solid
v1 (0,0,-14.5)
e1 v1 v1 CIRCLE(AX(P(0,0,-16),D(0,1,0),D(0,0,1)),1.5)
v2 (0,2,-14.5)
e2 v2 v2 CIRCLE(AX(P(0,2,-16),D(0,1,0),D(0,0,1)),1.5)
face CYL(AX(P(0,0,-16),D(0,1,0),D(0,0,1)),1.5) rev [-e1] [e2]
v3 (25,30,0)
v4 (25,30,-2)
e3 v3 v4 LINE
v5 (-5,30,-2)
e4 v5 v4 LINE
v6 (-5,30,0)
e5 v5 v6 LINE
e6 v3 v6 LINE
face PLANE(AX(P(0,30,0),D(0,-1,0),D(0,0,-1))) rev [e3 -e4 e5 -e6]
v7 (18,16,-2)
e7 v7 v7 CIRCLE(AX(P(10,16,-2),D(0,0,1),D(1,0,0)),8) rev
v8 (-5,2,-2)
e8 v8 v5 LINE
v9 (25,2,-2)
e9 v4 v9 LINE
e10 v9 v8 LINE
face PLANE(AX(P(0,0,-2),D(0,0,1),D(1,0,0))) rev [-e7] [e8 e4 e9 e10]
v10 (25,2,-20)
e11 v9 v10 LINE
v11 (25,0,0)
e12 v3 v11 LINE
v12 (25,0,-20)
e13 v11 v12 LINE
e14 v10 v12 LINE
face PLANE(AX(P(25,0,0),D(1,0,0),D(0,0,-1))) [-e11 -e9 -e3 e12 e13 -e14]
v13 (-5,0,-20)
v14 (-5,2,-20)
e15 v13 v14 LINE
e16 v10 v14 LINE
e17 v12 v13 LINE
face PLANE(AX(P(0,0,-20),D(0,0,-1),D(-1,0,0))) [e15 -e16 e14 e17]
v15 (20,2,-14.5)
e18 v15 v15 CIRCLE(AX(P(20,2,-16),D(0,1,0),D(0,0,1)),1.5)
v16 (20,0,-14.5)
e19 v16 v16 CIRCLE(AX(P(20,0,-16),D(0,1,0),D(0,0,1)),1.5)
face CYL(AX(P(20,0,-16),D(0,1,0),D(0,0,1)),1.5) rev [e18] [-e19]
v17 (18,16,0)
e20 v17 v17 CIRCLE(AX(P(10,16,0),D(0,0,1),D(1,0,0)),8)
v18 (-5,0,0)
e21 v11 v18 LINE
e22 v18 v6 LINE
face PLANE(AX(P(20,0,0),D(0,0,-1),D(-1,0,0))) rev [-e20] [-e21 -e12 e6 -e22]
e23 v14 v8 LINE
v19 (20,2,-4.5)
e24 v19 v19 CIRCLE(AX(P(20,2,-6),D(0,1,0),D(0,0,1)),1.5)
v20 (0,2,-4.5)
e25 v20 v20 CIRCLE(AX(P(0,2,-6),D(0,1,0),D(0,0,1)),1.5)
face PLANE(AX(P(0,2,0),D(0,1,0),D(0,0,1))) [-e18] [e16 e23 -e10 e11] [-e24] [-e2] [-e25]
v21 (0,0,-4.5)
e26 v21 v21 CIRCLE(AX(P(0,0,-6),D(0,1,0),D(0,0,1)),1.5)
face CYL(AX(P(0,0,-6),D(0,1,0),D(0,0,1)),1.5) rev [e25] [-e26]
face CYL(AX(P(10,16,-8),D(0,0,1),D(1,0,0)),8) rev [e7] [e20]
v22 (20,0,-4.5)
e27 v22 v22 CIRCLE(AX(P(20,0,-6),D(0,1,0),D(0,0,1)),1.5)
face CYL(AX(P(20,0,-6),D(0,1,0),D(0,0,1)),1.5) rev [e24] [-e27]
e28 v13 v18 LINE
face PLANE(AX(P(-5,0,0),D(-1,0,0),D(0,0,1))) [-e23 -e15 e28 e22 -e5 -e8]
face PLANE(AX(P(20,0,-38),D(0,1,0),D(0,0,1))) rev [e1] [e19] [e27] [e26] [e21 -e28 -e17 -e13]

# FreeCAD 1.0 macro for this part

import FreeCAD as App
import Part
import Sketcher


def add_polygon(sketch, points):
    """Adds a closed chain of lines whose ends are joined by coincident constraints."""
    first, n = sketch.GeometryCount, len(points)
    for a, b in zip(points, points[1:] + points[:1]):
        sketch.addGeometry(Part.LineSegment(App.Vector(*a, 0), App.Vector(*b, 0)), False)
    for i in range(n):
        sketch.addConstraint(Sketcher.Constraint("Coincident", first + i, 2, first + (i + 1) % n, 1))

doc = App.newDocument("Part")
body = doc.addObject("PartDesign::Body", "Body")

sketch1 = body.newObject("Sketcher::SketchObject", "Sketch")
sketch1.AttachmentSupport = (doc.getObject("YZ_Plane"), [""])
sketch1.MapMode = "FlatFace"
add_polygon(sketch1, [(38, 0), (0, 0), (0, -38), (3, -38), (3, -3), (38, -3)])
sketch1.addConstraint(Sketcher.Constraint("Horizontal", 0))
sketch1.addConstraint(Sketcher.Constraint("Vertical", 1))
sketch1.addConstraint(Sketcher.Constraint("Horizontal", 2))
sketch1.addConstraint(Sketcher.Constraint("Vertical", 3))
sketch1.addConstraint(Sketcher.Constraint("Horizontal", 4))
sketch1.addConstraint(Sketcher.Constraint("Vertical", 5))
sketch1.addConstraint(Sketcher.Constraint("Coincident", 0, 2, -1, 1))
sketch1.addConstraint(Sketcher.Constraint("Equal", 0, 1))
sketch1.addConstraint(Sketcher.Constraint("Equal", 4, 3))
sketch1.addConstraint(Sketcher.Constraint("DistanceX", 0, 2, 0, 1, 38.0))
sketch1.addConstraint(Sketcher.Constraint("DistanceX", 2, 1, 2, 2, 3.0))
pad1 = body.newObject("PartDesign::Pad", "Pad")
pad1.Profile = sketch1
pad1.Length = 20

sketch2 = body.newObject("Sketcher::SketchObject", "Sketch001")
sketch2.AttachmentSupport = (doc.getObject("YZ_Plane"), [""])
sketch2.MapMode = "FlatFace"
sketch2.AttachmentOffset = App.Placement(App.Vector(0, 0, 20), App.Rotation())
add_polygon(sketch2, [(38, -3), (38, 0), (0, 0), (0, -38), (3, -38), (3, -3)])
sketch2.addConstraint(Sketcher.Constraint("Vertical", 0))
sketch2.addConstraint(Sketcher.Constraint("Horizontal", 1))
sketch2.addConstraint(Sketcher.Constraint("Vertical", 2))
sketch2.addConstraint(Sketcher.Constraint("Horizontal", 3))
sketch2.addConstraint(Sketcher.Constraint("Vertical", 4))
sketch2.addConstraint(Sketcher.Constraint("Horizontal", 5))
sketch2.addConstraint(Sketcher.Constraint("Coincident", 1, 2, -1, 1))
sketch2.addConstraint(Sketcher.Constraint("Equal", 3, 0))
sketch2.addConstraint(Sketcher.Constraint("Equal", 1, 2))
sketch2.addConstraint(Sketcher.Constraint("DistanceX", 1, 2, 1, 1, 38.0))
sketch2.addConstraint(Sketcher.Constraint("DistanceX", 3, 1, 3, 2, 3.0))
pad2 = body.newObject("PartDesign::Pad", "Pad001")
pad2.Profile = sketch2
pad2.Length = 5

sketch3 = body.newObject("Sketcher::SketchObject", "Sketch002")
sketch3.AttachmentSupport = (doc.getObject("YZ_Plane"), [""])
sketch3.MapMode = "FlatFace"
add_polygon(sketch3, [(38, -3), (3, -3), (3, -38), (0, -38), (0, 0), (38, 0)])
sketch3.addConstraint(Sketcher.Constraint("Horizontal", 0))
sketch3.addConstraint(Sketcher.Constraint("Vertical", 1))
sketch3.addConstraint(Sketcher.Constraint("Horizontal", 2))
sketch3.addConstraint(Sketcher.Constraint("Vertical", 3))
sketch3.addConstraint(Sketcher.Constraint("Horizontal", 4))
sketch3.addConstraint(Sketcher.Constraint("Vertical", 5))
sketch3.addConstraint(Sketcher.Constraint("Coincident", 3, 2, -1, 1))
sketch3.addConstraint(Sketcher.Constraint("Equal", 0, 1))
sketch3.addConstraint(Sketcher.Constraint("Equal", 4, 3))
sketch3.addConstraint(Sketcher.Constraint("DistanceX", 0, 2, 0, 1, 35.0))
sketch3.addConstraint(Sketcher.Constraint("DistanceX", 2, 2, 2, 1, 3.0))
pad3 = body.newObject("PartDesign::Pad", "Pad002")
pad3.Profile = sketch3
pad3.Length = 5
pad3.Reversed = True

sketch4 = body.newObject("Sketcher::SketchObject", "Sketch003")
sketch4.AttachmentSupport = (doc.getObject("XY_Plane"), [""])
sketch4.MapMode = "FlatFace"
sketch4.addGeometry(Part.Circle(App.Vector(10, 16, 0), App.Vector(0, 0, 1), 8), False)
sketch4.addConstraint(Sketcher.Constraint("Diameter", 0, 16.0))
sketch4.addConstraint(Sketcher.Constraint("DistanceX", -1, 1, 0, 3, 10.0))
sketch4.addConstraint(Sketcher.Constraint("DistanceY", -1, 1, 0, 3, 16.0))
pocket1 = body.newObject("PartDesign::Pocket", "Pocket")
pocket1.Profile = sketch4
pocket1.Length = 8

sketch5 = body.newObject("Sketcher::SketchObject", "Sketch004")
sketch5.AttachmentSupport = (doc.getObject("XY_Plane"), [""])
sketch5.MapMode = "FlatFace"
sketch5.AttachmentOffset = App.Placement(App.Vector(0, 0, -38), App.Rotation())
add_polygon(sketch5, [(25, 3), (25, 0), (-5, 0), (-5, 3)])
sketch5.addConstraint(Sketcher.Constraint("Vertical", 0))
sketch5.addConstraint(Sketcher.Constraint("Horizontal", 1))
sketch5.addConstraint(Sketcher.Constraint("Vertical", 2))
sketch5.addConstraint(Sketcher.Constraint("Horizontal", 3))
sketch5.addConstraint(Sketcher.Constraint("PointOnObject", 0, 2, -1))
sketch5.addConstraint(Sketcher.Constraint("DistanceX", 1, 2, 1, 1, 30.0))
sketch5.addConstraint(Sketcher.Constraint("DistanceY", 0, 2, 0, 1, 3.0))
sketch5.addConstraint(Sketcher.Constraint("DistanceX", -1, 1, 0, 2, 25.0))
pocket2 = body.newObject("PartDesign::Pocket", "Pocket001")
pocket2.Profile = sketch5
pocket2.Length = 18
pocket2.Reversed = True

sketch6 = body.newObject("Sketcher::SketchObject", "Sketch005")
sketch6.AttachmentSupport = (doc.getObject("XZ_Plane"), [""])
sketch6.MapMode = "FlatFace"
sketch6.AttachmentOffset = App.Placement(App.Vector(0, 0, -3), App.Rotation())
add_polygon(sketch6, [(-5, -20), (-5, -3), (25, -3), (25, -20)])
sketch6.addConstraint(Sketcher.Constraint("Vertical", 0))
sketch6.addConstraint(Sketcher.Constraint("Horizontal", 1))
sketch6.addConstraint(Sketcher.Constraint("Vertical", 2))
sketch6.addConstraint(Sketcher.Constraint("Horizontal", 3))
sketch6.addConstraint(Sketcher.Constraint("DistanceX", 1, 1, 1, 2, 30.0))
sketch6.addConstraint(Sketcher.Constraint("DistanceY", 0, 1, 0, 2, 17.0))
sketch6.addConstraint(Sketcher.Constraint("DistanceX", 0, 2, -1, 1, 5.0))
sketch6.addConstraint(Sketcher.Constraint("DistanceY", 0, 2, -1, 1, 3.0))
pocket3 = body.newObject("PartDesign::Pocket", "Pocket002")
pocket3.Profile = sketch6
pocket3.Length = 1
pocket3.Reversed = True

sketch7 = body.newObject("Sketcher::SketchObject", "Sketch006")
sketch7.AttachmentSupport = (doc.getObject("XY_Plane"), [""])
sketch7.MapMode = "FlatFace"
sketch7.AttachmentOffset = App.Placement(App.Vector(0, 0, -3), App.Rotation())
add_polygon(sketch7, [(25, 38), (25, 2), (-5, 2), (-5, 38)])
sketch7.addConstraint(Sketcher.Constraint("Vertical", 0))
sketch7.addConstraint(Sketcher.Constraint("Horizontal", 1))
sketch7.addConstraint(Sketcher.Constraint("Vertical", 2))
sketch7.addConstraint(Sketcher.Constraint("Horizontal", 3))
sketch7.addConstraint(Sketcher.Constraint("DistanceX", 1, 2, 1, 1, 30.0))
sketch7.addConstraint(Sketcher.Constraint("DistanceY", 0, 2, 0, 1, 36.0))
sketch7.addConstraint(Sketcher.Constraint("DistanceX", -1, 1, 0, 2, 25.0))
sketch7.addConstraint(Sketcher.Constraint("DistanceY", -1, 1, 0, 2, 2.0))
pocket4 = body.newObject("PartDesign::Pocket", "Pocket003")
pocket4.Profile = sketch7
pocket4.Length = 1
pocket4.Reversed = True

sketch8 = body.newObject("Sketcher::SketchObject", "Sketch007")
sketch8.AttachmentSupport = (doc.getObject("XZ_Plane"), [""])
sketch8.MapMode = "FlatFace"
sketch8.AttachmentOffset = App.Placement(App.Vector(0, 0, -2), App.Rotation())
sketch8.addGeometry(Part.Circle(App.Vector(20, -6, 0), App.Vector(0, 0, 1), 1.5), False)
sketch8.addGeometry(Part.Circle(App.Vector(0, -6, 0), App.Vector(0, 0, 1), 1.5), False)
sketch8.addGeometry(Part.Circle(App.Vector(0, -16, 0), App.Vector(0, 0, 1), 1.5), False)
sketch8.addGeometry(Part.Circle(App.Vector(20, -16, 0), App.Vector(0, 0, 1), 1.5), False)
sketch8.addConstraint(Sketcher.Constraint("Equal", 0, 1))
sketch8.addConstraint(Sketcher.Constraint("Equal", 1, 2))
sketch8.addConstraint(Sketcher.Constraint("Equal", 2, 3))
sketch8.addConstraint(Sketcher.Constraint("PointOnObject", 1, 3, -2))
sketch8.addConstraint(Sketcher.Constraint("PointOnObject", 2, 3, -2))
sketch8.addConstraint(Sketcher.Constraint("Horizontal", 0, 3, 1, 3))
sketch8.addConstraint(Sketcher.Constraint("Horizontal", 2, 3, 3, 3))
sketch8.addConstraint(Sketcher.Constraint("Vertical", 0, 3, 3, 3))
sketch8.addConstraint(Sketcher.Constraint("Diameter", 0, 3.0))
sketch8.addConstraint(Sketcher.Constraint("DistanceX", -1, 1, 0, 3, 20.0))
sketch8.addConstraint(Sketcher.Constraint("DistanceY", 0, 3, -1, 1, 6.0))
sketch8.addConstraint(Sketcher.Constraint("DistanceY", 2, 3, -1, 1, 16.0))
pocket5 = body.newObject("PartDesign::Pocket", "Pocket004")
pocket5.Profile = sketch8
pocket5.Length = 2
pocket5.Reversed = True

sketch9 = body.newObject("Sketcher::SketchObject", "Sketch008")
sketch9.AttachmentSupport = (doc.getObject("XZ_Plane"), [""])
sketch9.MapMode = "FlatFace"
sketch9.AttachmentOffset = App.Placement(App.Vector(0, 0, -38), App.Rotation())
add_polygon(sketch9, [(-11, -4), (-11, 1), (28, 1), (28, -4)])
sketch9.addConstraint(Sketcher.Constraint("Vertical", 0))
sketch9.addConstraint(Sketcher.Constraint("Horizontal", 1))
sketch9.addConstraint(Sketcher.Constraint("Vertical", 2))
sketch9.addConstraint(Sketcher.Constraint("Horizontal", 3))
sketch9.addConstraint(Sketcher.Constraint("DistanceY", 0, 1, 0, 2, 5.702998))
sketch9.addConstraint(Sketcher.Constraint("DistanceX", 1, 1, 1, 2, 39.353315))
sketch9.addConstraint(Sketcher.Constraint("DistanceX", 0, 2, -1, 1, 11.460748))
sketch9.addConstraint(Sketcher.Constraint("DistanceY", -1, 1, 0, 2, 1.426223))
pocket6 = body.newObject("PartDesign::Pocket", "Pocket005")
pocket6.Profile = sketch9
pocket6.Length = 8
pocket6.Reversed = True

doc.recompute()
